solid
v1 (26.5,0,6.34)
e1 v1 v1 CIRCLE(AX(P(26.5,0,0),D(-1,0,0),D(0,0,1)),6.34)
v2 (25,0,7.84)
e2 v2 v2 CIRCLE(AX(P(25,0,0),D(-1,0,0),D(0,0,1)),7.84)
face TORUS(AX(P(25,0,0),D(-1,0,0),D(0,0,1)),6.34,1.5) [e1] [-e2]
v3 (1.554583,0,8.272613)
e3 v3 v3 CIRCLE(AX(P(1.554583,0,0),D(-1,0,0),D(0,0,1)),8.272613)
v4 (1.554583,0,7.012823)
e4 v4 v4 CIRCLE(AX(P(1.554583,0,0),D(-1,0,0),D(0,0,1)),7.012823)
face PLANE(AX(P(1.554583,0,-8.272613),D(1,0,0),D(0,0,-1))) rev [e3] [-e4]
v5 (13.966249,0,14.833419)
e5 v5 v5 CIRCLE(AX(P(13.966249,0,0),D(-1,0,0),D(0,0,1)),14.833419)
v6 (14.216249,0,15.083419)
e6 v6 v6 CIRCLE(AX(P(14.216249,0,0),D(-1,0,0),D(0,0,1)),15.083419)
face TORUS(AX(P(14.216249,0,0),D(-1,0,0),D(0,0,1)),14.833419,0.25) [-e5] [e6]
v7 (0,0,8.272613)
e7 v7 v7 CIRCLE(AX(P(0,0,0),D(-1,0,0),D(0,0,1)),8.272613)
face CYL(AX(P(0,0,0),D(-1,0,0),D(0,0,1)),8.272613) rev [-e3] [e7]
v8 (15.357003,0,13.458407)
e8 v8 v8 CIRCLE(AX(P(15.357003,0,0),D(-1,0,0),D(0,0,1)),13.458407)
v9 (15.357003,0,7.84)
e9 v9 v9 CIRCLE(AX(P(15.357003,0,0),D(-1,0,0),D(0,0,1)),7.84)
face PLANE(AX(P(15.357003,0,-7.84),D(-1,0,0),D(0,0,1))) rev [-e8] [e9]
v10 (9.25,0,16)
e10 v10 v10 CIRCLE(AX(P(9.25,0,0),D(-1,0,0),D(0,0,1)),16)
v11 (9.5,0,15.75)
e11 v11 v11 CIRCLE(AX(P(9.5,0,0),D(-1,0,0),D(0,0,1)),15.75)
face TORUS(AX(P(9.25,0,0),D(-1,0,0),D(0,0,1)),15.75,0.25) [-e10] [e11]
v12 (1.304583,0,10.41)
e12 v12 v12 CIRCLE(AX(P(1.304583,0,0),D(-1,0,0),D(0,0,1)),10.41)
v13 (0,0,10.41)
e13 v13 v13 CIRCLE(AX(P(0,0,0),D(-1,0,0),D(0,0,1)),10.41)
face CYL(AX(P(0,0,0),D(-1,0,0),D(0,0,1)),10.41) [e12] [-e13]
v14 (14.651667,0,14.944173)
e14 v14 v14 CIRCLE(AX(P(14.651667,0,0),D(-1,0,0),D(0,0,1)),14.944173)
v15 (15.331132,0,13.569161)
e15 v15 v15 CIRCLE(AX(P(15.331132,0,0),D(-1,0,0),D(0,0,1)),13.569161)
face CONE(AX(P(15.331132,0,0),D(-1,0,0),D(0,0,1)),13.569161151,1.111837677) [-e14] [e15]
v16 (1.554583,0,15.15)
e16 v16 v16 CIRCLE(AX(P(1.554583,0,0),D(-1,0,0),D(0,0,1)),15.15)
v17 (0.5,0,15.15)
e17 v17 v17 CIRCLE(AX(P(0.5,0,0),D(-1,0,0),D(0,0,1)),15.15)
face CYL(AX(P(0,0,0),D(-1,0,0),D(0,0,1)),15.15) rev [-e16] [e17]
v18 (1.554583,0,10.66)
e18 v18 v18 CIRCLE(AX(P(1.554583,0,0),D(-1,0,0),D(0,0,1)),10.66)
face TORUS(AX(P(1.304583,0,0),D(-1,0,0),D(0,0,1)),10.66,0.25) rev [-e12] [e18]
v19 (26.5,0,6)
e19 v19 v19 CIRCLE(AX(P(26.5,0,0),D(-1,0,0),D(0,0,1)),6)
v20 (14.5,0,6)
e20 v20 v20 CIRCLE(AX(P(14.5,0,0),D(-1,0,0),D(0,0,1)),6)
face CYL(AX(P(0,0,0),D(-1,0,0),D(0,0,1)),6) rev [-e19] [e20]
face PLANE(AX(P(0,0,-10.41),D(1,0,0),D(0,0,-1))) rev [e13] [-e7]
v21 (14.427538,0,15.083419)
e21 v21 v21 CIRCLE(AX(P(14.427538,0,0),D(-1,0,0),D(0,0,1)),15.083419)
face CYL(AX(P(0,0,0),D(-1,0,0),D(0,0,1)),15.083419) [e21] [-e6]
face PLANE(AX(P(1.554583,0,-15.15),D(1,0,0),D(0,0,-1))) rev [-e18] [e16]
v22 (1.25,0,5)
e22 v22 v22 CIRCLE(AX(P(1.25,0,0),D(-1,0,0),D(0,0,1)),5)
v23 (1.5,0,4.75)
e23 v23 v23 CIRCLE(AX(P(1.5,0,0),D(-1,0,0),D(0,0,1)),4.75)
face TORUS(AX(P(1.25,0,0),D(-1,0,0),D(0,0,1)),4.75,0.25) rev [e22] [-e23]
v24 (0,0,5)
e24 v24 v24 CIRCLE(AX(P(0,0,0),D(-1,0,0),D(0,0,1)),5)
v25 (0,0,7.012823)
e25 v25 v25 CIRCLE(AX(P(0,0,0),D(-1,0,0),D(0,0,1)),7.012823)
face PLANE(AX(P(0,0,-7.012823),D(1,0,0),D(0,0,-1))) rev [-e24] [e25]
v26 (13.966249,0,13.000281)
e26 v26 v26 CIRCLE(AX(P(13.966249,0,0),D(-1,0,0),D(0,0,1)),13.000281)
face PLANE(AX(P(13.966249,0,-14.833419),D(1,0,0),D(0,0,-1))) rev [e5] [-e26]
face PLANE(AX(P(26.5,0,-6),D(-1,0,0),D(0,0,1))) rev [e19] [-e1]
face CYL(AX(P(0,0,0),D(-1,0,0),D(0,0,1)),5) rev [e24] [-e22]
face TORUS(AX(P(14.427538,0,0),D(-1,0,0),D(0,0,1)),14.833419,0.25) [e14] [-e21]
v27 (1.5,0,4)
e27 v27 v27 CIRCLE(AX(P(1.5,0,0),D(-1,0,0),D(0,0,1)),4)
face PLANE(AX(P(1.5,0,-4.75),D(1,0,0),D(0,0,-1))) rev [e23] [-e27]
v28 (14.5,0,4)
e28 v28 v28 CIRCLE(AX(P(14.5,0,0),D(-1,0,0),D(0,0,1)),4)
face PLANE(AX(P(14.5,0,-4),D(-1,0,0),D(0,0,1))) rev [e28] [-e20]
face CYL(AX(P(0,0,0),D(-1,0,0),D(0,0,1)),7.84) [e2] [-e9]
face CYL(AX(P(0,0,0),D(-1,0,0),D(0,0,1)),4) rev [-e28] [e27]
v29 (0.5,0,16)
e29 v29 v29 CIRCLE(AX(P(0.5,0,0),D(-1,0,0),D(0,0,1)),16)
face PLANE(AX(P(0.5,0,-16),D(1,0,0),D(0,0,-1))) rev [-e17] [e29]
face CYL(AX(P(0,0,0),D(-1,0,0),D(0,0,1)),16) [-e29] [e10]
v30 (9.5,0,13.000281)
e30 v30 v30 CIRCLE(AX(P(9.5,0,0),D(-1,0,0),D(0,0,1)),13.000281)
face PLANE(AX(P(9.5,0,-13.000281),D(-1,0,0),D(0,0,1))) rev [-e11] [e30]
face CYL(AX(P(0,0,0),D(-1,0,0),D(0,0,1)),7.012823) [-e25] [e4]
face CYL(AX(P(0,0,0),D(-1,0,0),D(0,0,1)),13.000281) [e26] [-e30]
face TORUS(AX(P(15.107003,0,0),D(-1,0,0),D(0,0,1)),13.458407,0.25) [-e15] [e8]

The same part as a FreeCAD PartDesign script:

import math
import FreeCAD as App
import Part
import Sketcher
from FreeCAD import Vector

doc = App.newDocument("Part")
body = doc.addObject("PartDesign::Body", "Body")

sketch1 = doc.addObject("Sketcher::SketchObject", "Sketch")
body.addObject(sketch1)
sketch1.AttachmentSupport = (doc.XZ_Plane, [""])
sketch1.MapMode = "FlatFace"
sketch1.addGeometry(Part.LineSegment(Vector(0, -5, 0), Vector(1.25, -5, 0)), False)
sketch1.addGeometry(Part.ArcOfCircle(Part.Circle(Vector(1.25, -4.75, 0), Vector(0, 0, 1), 0.25), math.radians(-90), math.radians(0)), False)
sketch1.addGeometry(Part.LineSegment(Vector(1.5, -4.75, 0), Vector(1.5, -4, 0)), False)
sketch1.addGeometry(Part.LineSegment(Vector(1.5, -4, 0), Vector(14.5, -4, 0)), False)
sketch1.addGeometry(Part.LineSegment(Vector(14.5, -4, 0), Vector(14.5, -6, 0)), False)
sketch1.addGeometry(Part.LineSegment(Vector(14.5, -6, 0), Vector(26.5, -6, 0)), False)
sketch1.addGeometry(Part.LineSegment(Vector(26.5, -6, 0), Vector(26.5, -6.34, 0)), False)
sketch1.addGeometry(Part.ArcOfCircle(Part.Circle(Vector(25, -6.34, 0), Vector(0, 0, 1), 1.5), math.radians(-90), math.radians(0)), False)
sketch1.addGeometry(Part.LineSegment(Vector(25, -7.84, 0), Vector(15.36, -7.84, 0)), False)
sketch1.addGeometry(Part.LineSegment(Vector(15.36, -7.84, 0), Vector(15.36, -13.46, 0)), False)
sketch1.addGeometry(Part.ArcOfCircle(Part.Circle(Vector(15.11, -13.46, 0), Vector(0, 0, 1), 0.25), math.radians(-26), math.radians(0)), False)
sketch1.addGeometry(Part.LineSegment(Vector(15.33, -13.57, 0), Vector(14.65, -14.94, 0)), False)
sketch1.addGeometry(Part.ArcOfCircle(Part.Circle(Vector(14.43, -14.83, 0), Vector(0, 0, 1), 0.25), math.radians(-90), math.radians(-26)), False)
sketch1.addGeometry(Part.LineSegment(Vector(14.43, -15.08, 0), Vector(14.22, -15.08, 0)), False)
sketch1.addGeometry(Part.ArcOfCircle(Part.Circle(Vector(14.22, -14.83, 0), Vector(0, 0, 1), 0.25), math.radians(180), math.radians(270)), False)
sketch1.addGeometry(Part.LineSegment(Vector(13.97, -14.83, 0), Vector(13.97, -13, 0)), False)
sketch1.addGeometry(Part.LineSegment(Vector(13.97, -13, 0), Vector(9.5, -13, 0)), False)
sketch1.addGeometry(Part.LineSegment(Vector(9.5, -13, 0), Vector(9.5, -15.75, 0)), False)
sketch1.addGeometry(Part.ArcOfCircle(Part.Circle(Vector(9.25, -15.75, 0), Vector(0, 0, 1), 0.25), math.radians(-90), math.radians(0)), False)
sketch1.addGeometry(Part.LineSegment(Vector(9.25, -16, 0), Vector(0.5, -16, 0)), False)
sketch1.addGeometry(Part.LineSegment(Vector(0.5, -16, 0), Vector(0.5, -15.15, 0)), False)
sketch1.addGeometry(Part.LineSegment(Vector(0.5, -15.15, 0), Vector(1.55, -15.15, 0)), False)
sketch1.addGeometry(Part.LineSegment(Vector(1.55, -15.15, 0), Vector(1.55, -10.66, 0)), False)
sketch1.addGeometry(Part.ArcOfCircle(Part.Circle(Vector(1.3, -10.66, 0), Vector(0, 0, 1), 0.25), math.radians(0), math.radians(90)), False)
sketch1.addGeometry(Part.LineSegment(Vector(1.3, -10.41, 0), Vector(0, -10.41, 0)), False)
sketch1.addGeometry(Part.LineSegment(Vector(0, -10.41, 0), Vector(0, -8.27, 0)), False)
sketch1.addGeometry(Part.LineSegment(Vector(0, -8.27, 0), Vector(1.55, -8.27, 0)), False)
sketch1.addGeometry(Part.LineSegment(Vector(1.55, -8.27, 0), Vector(1.55, -7.01, 0)), False)
sketch1.addGeometry(Part.LineSegment(Vector(1.55, -7.01, 0), Vector(0, -7.01, 0)), False)
sketch1.addGeometry(Part.LineSegment(Vector(0, -7.01, 0), Vector(0, -5, 0)), False)
sketch1.addConstraint(Sketcher.Constraint("Tangent", 0, 2, 1, 1))
sketch1.addConstraint(Sketcher.Constraint("Tangent", 1, 2, 2, 1))
sketch1.addConstraint(Sketcher.Constraint("Coincident", 2, 2, 3, 1))
sketch1.addConstraint(Sketcher.Constraint("Coincident", 3, 2, 4, 1))
sketch1.addConstraint(Sketcher.Constraint("Coincident", 4, 2, 5, 1))
sketch1.addConstraint(Sketcher.Constraint("Coincident", 5, 2, 6, 1))
sketch1.addConstraint(Sketcher.Constraint("Tangent", 6, 2, 7, 2))
sketch1.addConstraint(Sketcher.Constraint("Tangent", 7, 1, 8, 1))
sketch1.addConstraint(Sketcher.Constraint("Coincident", 8, 2, 9, 1))
sketch1.addConstraint(Sketcher.Constraint("Tangent", 9, 2, 10, 2))
sketch1.addConstraint(Sketcher.Constraint("Tangent", 10, 1, 11, 1))
sketch1.addConstraint(Sketcher.Constraint("Tangent", 11, 2, 12, 2))
sketch1.addConstraint(Sketcher.Constraint("Tangent", 12, 1, 13, 1))
sketch1.addConstraint(Sketcher.Constraint("Tangent", 13, 2, 14, 2))
sketch1.addConstraint(Sketcher.Constraint("Tangent", 14, 1, 15, 1))
sketch1.addConstraint(Sketcher.Constraint("Coincident", 15, 2, 16, 1))
sketch1.addConstraint(Sketcher.Constraint("Coincident", 16, 2, 17, 1))
sketch1.addConstraint(Sketcher.Constraint("Tangent", 17, 2, 18, 2))
sketch1.addConstraint(Sketcher.Constraint("Tangent", 18, 1, 19, 1))
sketch1.addConstraint(Sketcher.Constraint("Coincident", 19, 2, 20, 1))
sketch1.addConstraint(Sketcher.Constraint("Coincident", 20, 2, 21, 1))
sketch1.addConstraint(Sketcher.Constraint("Coincident", 21, 2, 22, 1))
sketch1.addConstraint(Sketcher.Constraint("Tangent", 22, 2, 23, 1))
sketch1.addConstraint(Sketcher.Constraint("Tangent", 23, 2, 24, 1))
sketch1.addConstraint(Sketcher.Constraint("Coincident", 24, 2, 25, 1))
sketch1.addConstraint(Sketcher.Constraint("Coincident", 25, 2, 26, 1))
sketch1.addConstraint(Sketcher.Constraint("Coincident", 26, 2, 27, 1))
sketch1.addConstraint(Sketcher.Constraint("Coincident", 27, 2, 28, 1))
sketch1.addConstraint(Sketcher.Constraint("Coincident", 28, 2, 29, 1))
sketch1.addConstraint(Sketcher.Constraint("Coincident", 29, 2, 0, 1))
sketch1.addConstraint(Sketcher.Constraint("Horizontal", 0))
sketch1.addConstraint(Sketcher.Constraint("Vertical", 2))
sketch1.addConstraint(Sketcher.Constraint("Horizontal", 3))
sketch1.addConstraint(Sketcher.Constraint("Vertical", 4))
sketch1.addConstraint(Sketcher.Constraint("Horizontal", 5))
sketch1.addConstraint(Sketcher.Constraint("Vertical", 6))
sketch1.addConstraint(Sketcher.Constraint("Horizontal", 8))
sketch1.addConstraint(Sketcher.Constraint("Vertical", 9))
sketch1.addConstraint(Sketcher.Constraint("Horizontal", 13))
sketch1.addConstraint(Sketcher.Constraint("Vertical", 15))
sketch1.addConstraint(Sketcher.Constraint("Horizontal", 16))
sketch1.addConstraint(Sketcher.Constraint("Vertical", 17))
sketch1.addConstraint(Sketcher.Constraint("Horizontal", 19))
sketch1.addConstraint(Sketcher.Constraint("Vertical", 20))
sketch1.addConstraint(Sketcher.Constraint("Horizontal", 21))
sketch1.addConstraint(Sketcher.Constraint("Vertical", 22))
sketch1.addConstraint(Sketcher.Constraint("Horizontal", 24))
sketch1.addConstraint(Sketcher.Constraint("Vertical", 25))
sketch1.addConstraint(Sketcher.Constraint("Horizontal", 26))
sketch1.addConstraint(Sketcher.Constraint("Vertical", 27))
sketch1.addConstraint(Sketcher.Constraint("Horizontal", 28))
sketch1.addConstraint(Sketcher.Constraint("Vertical", 29))
sketch1.addConstraint(Sketcher.Constraint("Equal", 1, 10))
sketch1.addConstraint(Sketcher.Constraint("Equal", 10, 12))
sketch1.addConstraint(Sketcher.Constraint("Equal", 12, 14))
sketch1.addConstraint(Sketcher.Constraint("Equal", 14, 18))
sketch1.addConstraint(Sketcher.Constraint("Equal", 18, 23))
sketch1.addConstraint(Sketcher.Constraint("PointOnObject", 24, 2, -2))
sketch1.addConstraint(Sketcher.Constraint("PointOnObject", 28, 2, -2))
sketch1.addConstraint(Sketcher.Constraint("Vertical", 22, 2, 26, 2))
sketch1.addConstraint(Sketcher.Constraint("Radius", 7, 1.5))
sketch1.addConstraint(Sketcher.Constraint("DistanceX", 3, 1, 3, 2, 13.0))
sketch1.addConstraint(Sketcher.Constraint("DistanceX", 5, 1, 5, 2, 12.0))
sketch1.addConstraint(Sketcher.Constraint("DistanceY", 4, 2, 4, 1, 2.0))
sketch1.addConstraint(Sketcher.Constraint("Radius", 1, 0.25))
sketch1.addConstraint(Sketcher.Constraint("DistanceX", -1, 1, 7, 3, 25.0))
sketch1.addConstraint(Sketcher.Constraint("DistanceY", 0, 2, -1, 1, 5.0))
sketch1.addConstraint(Sketcher.Constraint("DistanceY", 2, 2, -1, 1, 4.0))
sketch1.addConstraint(Sketcher.Constraint("DistanceY", 18, 1, -1, 1, 16.0))
sketch1.addConstraint(Sketcher.Constraint("DistanceX", 1, 3, 18, 3, 8.0))
sketch1.addConstraint(Sketcher.Constraint("DistanceX", 19, 2, 17, 2, 9.0))
sketch1.addConstraint(Sketcher.Constraint("DistanceY", 6, 2, 6, 1, 0.34))
sketch1.addConstraint(Sketcher.Constraint("DistanceY", 20, 1, 20, 2, 0.85))
sketch1.addConstraint(Sketcher.Constraint("DistanceY", 22, 1, 22, 2, 4.49))
sketch1.addConstraint(Sketcher.Constraint("DistanceX", 13, 2, 13, 1, 0.211289))
sketch1.addConstraint(Sketcher.Constraint("DistanceX", 16, 2, 16, 1, 4.466249))
sketch1.addConstraint(Sketcher.Constraint("DistanceY", 15, 1, 15, 2, 1.833138))
sketch1.addConstraint(Sketcher.Constraint("DistanceY", 17, 2, 17, 1, 2.749719))
sketch1.addConstraint(Sketcher.Constraint("DistanceY", 27, 1, 27, 2, 1.25979))
sketch1.addConstraint(Sketcher.Constraint("Distance", 11, 1.533731))
sketch1.addConstraint(Sketcher.Constraint("DistanceX", 8, 2, 8, 1, 9.642997))
sketch1.addConstraint(Sketcher.Constraint("DistanceX", 21, 1, 21, 2, 1.054583))
sketch1.addConstraint(Sketcher.Constraint("DistanceY", 25, 1, 25, 2, 2.137387))
revolution = doc.addObject("PartDesign::Revolution", "Revolution")
body.addObject(revolution)
revolution.Profile = sketch1
revolution.ReferenceAxis = (sketch1, ["H_Axis"])
revolution.Angle = 360

doc.recompute()
